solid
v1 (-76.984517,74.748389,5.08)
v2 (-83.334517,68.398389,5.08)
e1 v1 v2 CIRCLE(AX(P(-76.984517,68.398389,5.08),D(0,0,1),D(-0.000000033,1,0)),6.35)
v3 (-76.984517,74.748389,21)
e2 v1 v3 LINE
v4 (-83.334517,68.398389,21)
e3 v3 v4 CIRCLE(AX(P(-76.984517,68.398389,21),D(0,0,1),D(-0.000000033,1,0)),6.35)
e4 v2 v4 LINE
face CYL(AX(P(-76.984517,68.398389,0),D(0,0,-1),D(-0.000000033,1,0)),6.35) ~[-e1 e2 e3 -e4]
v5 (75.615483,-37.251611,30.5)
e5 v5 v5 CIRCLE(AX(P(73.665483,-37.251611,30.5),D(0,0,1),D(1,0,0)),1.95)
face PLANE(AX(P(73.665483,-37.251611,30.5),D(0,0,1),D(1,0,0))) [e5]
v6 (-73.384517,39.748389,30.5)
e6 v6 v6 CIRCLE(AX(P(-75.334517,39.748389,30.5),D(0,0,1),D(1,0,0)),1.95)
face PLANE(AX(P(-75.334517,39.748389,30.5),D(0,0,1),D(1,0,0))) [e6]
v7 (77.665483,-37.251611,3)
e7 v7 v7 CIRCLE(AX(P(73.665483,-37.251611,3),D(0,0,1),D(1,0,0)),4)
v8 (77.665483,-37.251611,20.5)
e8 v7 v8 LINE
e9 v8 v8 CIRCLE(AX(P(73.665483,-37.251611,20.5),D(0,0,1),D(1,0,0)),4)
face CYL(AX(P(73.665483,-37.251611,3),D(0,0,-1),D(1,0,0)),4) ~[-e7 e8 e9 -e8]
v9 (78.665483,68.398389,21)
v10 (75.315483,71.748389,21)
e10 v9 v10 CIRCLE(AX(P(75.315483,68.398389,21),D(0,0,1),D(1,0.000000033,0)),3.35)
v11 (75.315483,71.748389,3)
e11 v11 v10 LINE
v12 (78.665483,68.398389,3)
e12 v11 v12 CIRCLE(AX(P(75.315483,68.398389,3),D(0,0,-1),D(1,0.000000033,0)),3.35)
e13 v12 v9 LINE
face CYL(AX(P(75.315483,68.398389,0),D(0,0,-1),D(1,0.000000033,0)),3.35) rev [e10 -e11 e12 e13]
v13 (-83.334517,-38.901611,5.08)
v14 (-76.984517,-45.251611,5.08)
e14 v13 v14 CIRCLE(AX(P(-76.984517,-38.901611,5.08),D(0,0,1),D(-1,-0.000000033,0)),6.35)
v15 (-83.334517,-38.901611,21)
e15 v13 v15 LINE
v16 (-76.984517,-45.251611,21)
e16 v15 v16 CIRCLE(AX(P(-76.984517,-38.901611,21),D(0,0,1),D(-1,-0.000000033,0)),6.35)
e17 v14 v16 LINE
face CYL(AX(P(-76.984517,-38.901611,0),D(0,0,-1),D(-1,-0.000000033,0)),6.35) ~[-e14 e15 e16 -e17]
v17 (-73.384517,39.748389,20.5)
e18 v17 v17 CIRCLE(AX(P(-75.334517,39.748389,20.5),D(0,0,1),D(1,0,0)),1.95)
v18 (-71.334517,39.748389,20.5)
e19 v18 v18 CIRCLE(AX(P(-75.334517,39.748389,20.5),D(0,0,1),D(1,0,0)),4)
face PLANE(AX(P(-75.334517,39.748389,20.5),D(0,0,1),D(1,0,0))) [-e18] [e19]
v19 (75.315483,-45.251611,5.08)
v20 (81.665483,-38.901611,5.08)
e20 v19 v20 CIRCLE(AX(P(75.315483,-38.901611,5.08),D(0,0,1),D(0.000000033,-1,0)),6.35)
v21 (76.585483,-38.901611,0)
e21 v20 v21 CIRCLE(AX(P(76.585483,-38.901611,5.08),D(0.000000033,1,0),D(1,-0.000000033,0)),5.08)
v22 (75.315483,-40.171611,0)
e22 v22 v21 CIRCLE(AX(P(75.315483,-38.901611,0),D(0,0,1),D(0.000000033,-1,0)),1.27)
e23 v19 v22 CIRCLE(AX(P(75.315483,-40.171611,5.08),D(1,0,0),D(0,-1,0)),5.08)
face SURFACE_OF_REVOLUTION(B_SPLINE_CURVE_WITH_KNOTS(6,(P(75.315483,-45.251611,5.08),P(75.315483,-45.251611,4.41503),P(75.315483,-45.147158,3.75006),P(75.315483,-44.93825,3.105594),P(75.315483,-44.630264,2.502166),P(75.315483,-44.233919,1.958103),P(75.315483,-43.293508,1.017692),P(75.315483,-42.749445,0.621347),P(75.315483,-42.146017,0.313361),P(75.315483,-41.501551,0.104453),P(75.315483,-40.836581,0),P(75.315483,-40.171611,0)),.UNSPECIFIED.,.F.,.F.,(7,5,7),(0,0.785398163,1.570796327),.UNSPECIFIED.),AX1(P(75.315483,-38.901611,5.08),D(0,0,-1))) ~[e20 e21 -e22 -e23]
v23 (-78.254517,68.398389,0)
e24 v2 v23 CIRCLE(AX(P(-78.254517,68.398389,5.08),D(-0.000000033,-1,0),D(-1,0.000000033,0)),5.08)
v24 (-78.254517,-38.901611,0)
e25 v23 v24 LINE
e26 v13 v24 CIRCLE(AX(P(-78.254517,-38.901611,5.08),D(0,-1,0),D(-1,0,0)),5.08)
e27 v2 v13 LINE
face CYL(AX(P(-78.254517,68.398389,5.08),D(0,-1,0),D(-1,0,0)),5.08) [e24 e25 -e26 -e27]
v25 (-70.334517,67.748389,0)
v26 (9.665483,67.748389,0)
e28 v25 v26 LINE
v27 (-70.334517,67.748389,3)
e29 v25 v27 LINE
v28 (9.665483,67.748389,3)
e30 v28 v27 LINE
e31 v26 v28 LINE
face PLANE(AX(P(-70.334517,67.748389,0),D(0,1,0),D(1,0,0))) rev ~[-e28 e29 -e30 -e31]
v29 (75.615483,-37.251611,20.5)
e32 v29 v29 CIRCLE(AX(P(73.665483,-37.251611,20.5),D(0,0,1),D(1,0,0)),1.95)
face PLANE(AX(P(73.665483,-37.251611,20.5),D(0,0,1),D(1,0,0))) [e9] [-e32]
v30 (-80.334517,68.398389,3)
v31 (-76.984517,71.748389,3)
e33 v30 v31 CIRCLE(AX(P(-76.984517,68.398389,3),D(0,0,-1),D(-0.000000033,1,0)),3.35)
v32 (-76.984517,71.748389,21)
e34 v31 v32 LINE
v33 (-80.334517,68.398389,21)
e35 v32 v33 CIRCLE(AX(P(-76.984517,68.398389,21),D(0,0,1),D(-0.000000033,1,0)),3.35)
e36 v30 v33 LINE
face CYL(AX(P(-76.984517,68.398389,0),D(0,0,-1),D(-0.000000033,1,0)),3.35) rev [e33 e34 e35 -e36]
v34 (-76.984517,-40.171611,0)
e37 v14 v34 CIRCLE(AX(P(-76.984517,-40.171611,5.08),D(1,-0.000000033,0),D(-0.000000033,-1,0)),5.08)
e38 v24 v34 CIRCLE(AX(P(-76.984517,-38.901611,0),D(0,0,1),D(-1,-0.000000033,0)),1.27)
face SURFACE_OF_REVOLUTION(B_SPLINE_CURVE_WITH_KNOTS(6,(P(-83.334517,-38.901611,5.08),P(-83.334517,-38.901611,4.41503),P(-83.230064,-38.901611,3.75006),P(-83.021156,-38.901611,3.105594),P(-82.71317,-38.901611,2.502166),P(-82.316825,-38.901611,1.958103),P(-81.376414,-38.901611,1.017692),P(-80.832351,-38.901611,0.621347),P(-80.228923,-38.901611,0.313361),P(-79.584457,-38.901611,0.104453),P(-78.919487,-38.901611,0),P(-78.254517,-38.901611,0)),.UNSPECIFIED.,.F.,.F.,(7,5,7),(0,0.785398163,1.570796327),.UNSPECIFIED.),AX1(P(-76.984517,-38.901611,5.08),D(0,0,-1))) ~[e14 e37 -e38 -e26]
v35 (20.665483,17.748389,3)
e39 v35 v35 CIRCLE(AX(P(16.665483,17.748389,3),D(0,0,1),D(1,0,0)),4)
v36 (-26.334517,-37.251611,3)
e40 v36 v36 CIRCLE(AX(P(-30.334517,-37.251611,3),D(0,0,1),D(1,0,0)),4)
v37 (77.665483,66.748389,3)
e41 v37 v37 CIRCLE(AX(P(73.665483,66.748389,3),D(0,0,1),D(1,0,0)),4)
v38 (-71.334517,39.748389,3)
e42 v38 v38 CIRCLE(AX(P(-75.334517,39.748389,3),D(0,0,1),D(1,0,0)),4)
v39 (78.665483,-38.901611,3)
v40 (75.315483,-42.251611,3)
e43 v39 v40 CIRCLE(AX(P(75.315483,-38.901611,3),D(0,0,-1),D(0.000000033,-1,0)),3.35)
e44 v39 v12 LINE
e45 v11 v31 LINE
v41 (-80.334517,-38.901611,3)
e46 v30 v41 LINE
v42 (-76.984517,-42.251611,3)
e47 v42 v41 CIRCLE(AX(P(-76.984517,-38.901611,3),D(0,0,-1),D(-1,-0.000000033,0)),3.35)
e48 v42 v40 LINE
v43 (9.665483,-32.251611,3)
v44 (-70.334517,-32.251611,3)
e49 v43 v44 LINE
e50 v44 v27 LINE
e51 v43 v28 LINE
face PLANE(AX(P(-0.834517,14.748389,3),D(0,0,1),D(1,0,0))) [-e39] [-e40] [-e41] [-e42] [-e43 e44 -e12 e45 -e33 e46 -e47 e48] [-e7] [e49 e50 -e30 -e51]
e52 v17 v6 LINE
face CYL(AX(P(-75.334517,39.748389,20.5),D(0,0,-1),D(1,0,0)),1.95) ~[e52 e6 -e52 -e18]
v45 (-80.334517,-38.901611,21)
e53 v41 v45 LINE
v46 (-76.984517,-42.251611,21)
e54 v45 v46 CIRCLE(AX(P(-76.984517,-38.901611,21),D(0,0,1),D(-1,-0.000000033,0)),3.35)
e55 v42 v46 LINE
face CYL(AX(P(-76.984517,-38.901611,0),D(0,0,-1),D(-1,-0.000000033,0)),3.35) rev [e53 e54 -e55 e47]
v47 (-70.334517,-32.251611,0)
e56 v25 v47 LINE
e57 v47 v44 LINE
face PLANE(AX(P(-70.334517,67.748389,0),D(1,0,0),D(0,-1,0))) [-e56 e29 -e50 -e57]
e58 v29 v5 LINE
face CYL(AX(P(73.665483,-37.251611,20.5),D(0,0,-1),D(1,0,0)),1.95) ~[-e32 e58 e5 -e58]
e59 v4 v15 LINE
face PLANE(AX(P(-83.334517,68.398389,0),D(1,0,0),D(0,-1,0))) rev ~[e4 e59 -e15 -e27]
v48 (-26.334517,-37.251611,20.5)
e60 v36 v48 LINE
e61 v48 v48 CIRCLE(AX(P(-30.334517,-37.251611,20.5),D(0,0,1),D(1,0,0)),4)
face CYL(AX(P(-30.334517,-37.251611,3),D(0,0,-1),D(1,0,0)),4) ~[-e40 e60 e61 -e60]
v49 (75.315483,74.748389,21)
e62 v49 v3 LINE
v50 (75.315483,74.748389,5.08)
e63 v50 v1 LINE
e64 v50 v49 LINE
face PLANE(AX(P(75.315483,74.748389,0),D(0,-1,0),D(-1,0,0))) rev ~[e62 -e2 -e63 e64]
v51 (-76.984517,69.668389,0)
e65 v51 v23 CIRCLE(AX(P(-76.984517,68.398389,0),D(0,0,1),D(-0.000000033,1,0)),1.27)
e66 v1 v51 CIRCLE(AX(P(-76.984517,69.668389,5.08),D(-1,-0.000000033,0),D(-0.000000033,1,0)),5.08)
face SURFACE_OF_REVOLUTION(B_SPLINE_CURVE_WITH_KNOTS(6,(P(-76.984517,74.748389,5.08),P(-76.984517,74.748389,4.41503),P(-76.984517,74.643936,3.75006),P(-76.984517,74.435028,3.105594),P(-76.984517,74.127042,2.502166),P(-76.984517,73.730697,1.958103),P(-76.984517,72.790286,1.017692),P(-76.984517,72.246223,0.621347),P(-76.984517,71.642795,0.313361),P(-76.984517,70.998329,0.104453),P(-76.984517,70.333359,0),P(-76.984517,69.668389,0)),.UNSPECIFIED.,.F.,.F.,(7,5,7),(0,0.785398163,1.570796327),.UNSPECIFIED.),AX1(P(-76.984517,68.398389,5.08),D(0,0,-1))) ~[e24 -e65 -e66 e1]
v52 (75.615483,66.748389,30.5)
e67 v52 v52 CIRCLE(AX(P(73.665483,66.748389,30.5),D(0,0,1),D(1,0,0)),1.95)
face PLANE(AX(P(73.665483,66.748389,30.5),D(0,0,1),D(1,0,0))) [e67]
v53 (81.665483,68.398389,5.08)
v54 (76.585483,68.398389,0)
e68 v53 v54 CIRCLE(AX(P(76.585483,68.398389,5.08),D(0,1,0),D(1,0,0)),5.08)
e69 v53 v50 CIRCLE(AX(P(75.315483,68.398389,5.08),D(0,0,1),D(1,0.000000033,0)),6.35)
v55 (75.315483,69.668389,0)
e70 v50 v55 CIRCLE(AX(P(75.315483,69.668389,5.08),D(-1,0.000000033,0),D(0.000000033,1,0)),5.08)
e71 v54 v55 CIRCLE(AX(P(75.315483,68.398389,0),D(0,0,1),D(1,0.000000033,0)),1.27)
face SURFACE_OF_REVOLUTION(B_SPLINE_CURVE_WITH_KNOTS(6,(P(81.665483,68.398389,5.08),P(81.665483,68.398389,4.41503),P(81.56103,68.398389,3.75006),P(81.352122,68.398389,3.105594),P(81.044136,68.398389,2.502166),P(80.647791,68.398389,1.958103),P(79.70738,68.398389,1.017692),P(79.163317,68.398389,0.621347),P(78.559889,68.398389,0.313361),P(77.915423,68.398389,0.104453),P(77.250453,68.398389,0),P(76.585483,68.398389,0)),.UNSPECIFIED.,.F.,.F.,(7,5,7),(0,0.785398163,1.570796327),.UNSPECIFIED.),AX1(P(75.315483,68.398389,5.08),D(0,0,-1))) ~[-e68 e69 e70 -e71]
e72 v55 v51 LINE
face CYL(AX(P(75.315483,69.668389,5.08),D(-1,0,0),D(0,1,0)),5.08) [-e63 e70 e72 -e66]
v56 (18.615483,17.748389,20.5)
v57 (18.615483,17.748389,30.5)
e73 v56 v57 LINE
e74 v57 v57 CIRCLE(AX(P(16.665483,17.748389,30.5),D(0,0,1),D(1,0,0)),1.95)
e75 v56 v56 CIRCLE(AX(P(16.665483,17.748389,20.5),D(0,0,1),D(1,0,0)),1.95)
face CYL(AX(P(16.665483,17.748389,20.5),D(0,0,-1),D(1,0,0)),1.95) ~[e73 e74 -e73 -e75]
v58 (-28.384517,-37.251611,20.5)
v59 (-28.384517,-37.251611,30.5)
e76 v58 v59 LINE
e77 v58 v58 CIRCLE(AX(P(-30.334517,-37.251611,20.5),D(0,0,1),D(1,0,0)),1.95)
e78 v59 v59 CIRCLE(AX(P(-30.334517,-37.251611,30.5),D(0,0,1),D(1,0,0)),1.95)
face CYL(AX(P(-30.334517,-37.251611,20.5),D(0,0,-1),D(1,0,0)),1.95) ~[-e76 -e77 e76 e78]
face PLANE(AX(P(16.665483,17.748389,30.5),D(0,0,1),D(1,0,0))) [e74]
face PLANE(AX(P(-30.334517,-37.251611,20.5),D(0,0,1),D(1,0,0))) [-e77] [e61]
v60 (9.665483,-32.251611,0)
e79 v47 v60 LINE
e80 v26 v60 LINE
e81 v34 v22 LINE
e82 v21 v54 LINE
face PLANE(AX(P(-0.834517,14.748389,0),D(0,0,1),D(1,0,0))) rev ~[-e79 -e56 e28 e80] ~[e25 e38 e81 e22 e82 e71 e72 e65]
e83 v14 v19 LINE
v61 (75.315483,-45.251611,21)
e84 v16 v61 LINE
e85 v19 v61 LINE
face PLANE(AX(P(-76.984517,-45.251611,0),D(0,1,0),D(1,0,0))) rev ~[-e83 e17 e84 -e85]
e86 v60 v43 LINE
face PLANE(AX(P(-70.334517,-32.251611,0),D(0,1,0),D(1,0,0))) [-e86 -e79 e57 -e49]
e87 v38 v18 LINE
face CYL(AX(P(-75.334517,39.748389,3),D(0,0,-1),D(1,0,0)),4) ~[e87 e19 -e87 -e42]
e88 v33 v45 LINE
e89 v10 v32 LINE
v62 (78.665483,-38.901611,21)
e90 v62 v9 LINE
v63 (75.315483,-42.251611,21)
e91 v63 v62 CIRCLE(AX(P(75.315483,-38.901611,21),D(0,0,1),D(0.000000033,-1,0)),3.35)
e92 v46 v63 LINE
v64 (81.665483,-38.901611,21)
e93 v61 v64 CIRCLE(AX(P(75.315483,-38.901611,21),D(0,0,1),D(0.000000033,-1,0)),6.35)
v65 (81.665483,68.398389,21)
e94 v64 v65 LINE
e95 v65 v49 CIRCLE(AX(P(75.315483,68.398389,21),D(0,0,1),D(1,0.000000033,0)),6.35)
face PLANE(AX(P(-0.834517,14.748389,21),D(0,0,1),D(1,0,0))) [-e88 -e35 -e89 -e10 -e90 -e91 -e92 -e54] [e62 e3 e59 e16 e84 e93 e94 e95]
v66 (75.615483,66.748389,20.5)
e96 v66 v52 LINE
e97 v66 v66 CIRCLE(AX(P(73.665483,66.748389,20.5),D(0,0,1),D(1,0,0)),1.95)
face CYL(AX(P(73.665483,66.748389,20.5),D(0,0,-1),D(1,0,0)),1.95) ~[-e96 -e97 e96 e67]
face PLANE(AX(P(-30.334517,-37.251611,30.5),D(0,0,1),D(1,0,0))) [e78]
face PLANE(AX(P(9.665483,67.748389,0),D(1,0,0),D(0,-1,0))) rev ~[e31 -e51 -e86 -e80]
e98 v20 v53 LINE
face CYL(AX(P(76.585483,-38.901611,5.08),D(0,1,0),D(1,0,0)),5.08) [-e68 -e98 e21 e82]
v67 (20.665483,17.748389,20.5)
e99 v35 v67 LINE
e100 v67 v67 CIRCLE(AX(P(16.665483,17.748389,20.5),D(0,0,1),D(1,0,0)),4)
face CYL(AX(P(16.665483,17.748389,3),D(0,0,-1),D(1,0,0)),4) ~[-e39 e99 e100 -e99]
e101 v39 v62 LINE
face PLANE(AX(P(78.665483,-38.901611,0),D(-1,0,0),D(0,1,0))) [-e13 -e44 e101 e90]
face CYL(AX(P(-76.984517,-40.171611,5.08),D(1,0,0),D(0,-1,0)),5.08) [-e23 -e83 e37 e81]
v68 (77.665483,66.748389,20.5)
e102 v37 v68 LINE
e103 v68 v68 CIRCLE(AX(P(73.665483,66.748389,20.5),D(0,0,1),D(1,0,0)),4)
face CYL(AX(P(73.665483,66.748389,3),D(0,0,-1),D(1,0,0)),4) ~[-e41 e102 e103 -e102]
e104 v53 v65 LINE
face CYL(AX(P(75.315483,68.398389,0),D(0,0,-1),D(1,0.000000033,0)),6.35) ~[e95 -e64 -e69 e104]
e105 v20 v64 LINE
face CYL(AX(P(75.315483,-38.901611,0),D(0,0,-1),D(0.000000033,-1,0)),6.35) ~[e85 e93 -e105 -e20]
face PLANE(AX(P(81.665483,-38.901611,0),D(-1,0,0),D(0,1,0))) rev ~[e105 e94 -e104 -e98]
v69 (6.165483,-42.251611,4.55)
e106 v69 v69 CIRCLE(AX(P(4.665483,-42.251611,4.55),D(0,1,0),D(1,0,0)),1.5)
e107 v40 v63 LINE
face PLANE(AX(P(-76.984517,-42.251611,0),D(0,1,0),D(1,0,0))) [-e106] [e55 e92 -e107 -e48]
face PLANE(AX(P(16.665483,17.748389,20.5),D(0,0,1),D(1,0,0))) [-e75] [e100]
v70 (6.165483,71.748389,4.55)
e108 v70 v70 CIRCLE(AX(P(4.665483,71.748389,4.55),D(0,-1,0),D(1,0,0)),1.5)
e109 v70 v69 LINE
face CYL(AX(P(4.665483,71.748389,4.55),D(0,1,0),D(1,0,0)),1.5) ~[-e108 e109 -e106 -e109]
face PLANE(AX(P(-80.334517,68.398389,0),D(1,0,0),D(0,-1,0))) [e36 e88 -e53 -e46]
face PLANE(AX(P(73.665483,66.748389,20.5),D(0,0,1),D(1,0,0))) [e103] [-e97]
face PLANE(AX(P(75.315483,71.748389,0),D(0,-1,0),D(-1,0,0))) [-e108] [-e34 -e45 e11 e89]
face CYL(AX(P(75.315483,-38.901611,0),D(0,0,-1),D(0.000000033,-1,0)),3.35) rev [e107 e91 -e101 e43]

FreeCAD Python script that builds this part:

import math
import FreeCAD as App
import Part
import Sketcher

V = App.Vector


def edges_at(feature, points):
    """Names of the edges that pass closest to the given points."""
    edges = feature.Shape.Edges
    near = lambda p: min(range(len(edges)), key=lambda i: edges[i].distToShape(Part.Vertex(*p))[0])
    return sorted({f"Edge{near(p) + 1}" for p in points})


def faces_at(feature, points):
    """Names of the faces that lie closest to the given points."""
    faces = feature.Shape.Faces
    near = lambda p: min(range(len(faces)), key=lambda i: faces[i].distToShape(Part.Vertex(*p))[0])
    return sorted({f"Face{near(p) + 1}" for p in points})

doc = App.newDocument("Part")
params = doc.addObject("Spreadsheet::Sheet", "Params")
for row, (alias, value) in enumerate([
    ("sketch1_radius", "6.35 mm"),
    ("sketch1_width", "152.3 mm"),
    ("sketch1_height", "107.3 mm"),
    ("pad1_length", "21 mm"),
    ("thickness_wall", "3 mm"),
    ("fillet_radius", "5.08 mm"),
    ("sketch2_diameter", "8 mm"),
    ("pad2_length", "17.5 mm"),
    ("sketch3_diameter", "3.9 mm"),
    ("pad3_length", "10 mm"),
    ("sketch4_width", "80 mm"),
    ("sketch4_height", "100 mm"),
    ("pocket1_length", "25 mm"),
    ("sketch5_diameter", "3 mm"),
    ("pad4_length", "115 mm"),
], start=1):
    params.set(f"A{row}", alias)
    params.set(f"B{row}", "=" + value)
    params.setAlias(f"B{row}", alias)

body = doc.addObject("PartDesign::Body", "Body")

# Sketch on XY plane
sketch1 = body.newObject("Sketcher::SketchObject", "Sketch")
sketch1.AttachmentSupport = (doc.getObject("XY_Plane"), [""])
sketch1.MapMode = "FlatFace"
sketch1.addGeometry([
    Part.ArcOfCircle(Part.Circle(V(-76.984517, -38.901611, 0), V(0, 0, 1), 6.35), math.radians(-179.999998), math.radians(-90.000002)),  # 0
    Part.LineSegment(V(-76.984517, -45.251611, 0), V(75.315483, -45.251611, 0)),  # 1
    Part.ArcOfCircle(Part.Circle(V(75.315483, -38.901611, 0), V(0, 0, 1), 6.35), math.radians(-89.999998), math.radians(-0.000002)),  # 2
    Part.LineSegment(V(81.665483, -38.901611, 0), V(81.665483, 68.398389, 0)),  # 3
    Part.ArcOfCircle(Part.Circle(V(75.315483, 68.398389, 0), V(0, 0, 1), 6.35), math.radians(0.000002), math.radians(89.999998)),  # 4
    Part.LineSegment(V(75.315483, 74.748389, 0), V(-76.984517, 74.748389, 0)),  # 5
    Part.ArcOfCircle(Part.Circle(V(-76.984517, 68.398389, 0), V(0, 0, 1), 6.35), math.radians(90.000002), math.radians(179.999998)),  # 6
    Part.LineSegment(V(-83.334517, 68.398389, 0), V(-83.334517, -38.901611, 0)),  # 7
], False)
sketch1.addConstraint([
    Sketcher.Constraint("Tangent", 0, 2, 1, 1),
    Sketcher.Constraint("Tangent", 1, 2, 2, 1),
    Sketcher.Constraint("Tangent", 2, 2, 3, 1),
    Sketcher.Constraint("Tangent", 3, 2, 4, 1),
    Sketcher.Constraint("Tangent", 4, 2, 5, 1),
    Sketcher.Constraint("Tangent", 5, 2, 6, 1),
    Sketcher.Constraint("Tangent", 6, 2, 7, 1),
    Sketcher.Constraint("Tangent", 7, 2, 0, 1),
    Sketcher.Constraint("Horizontal", 1),
    Sketcher.Constraint("Vertical", 3),
    Sketcher.Constraint("Horizontal", 5),
    Sketcher.Constraint("Vertical", 7),
    Sketcher.Constraint("Equal", 0, 2),
    Sketcher.Constraint("Equal", 2, 4),
    Sketcher.Constraint("Equal", 4, 6),
    Sketcher.Constraint("Radius", 0, 6.35),
    Sketcher.Constraint("DistanceX", 1, 1, 1, 2, 152.3),
    Sketcher.Constraint("DistanceY", 3, 1, 3, 2, 107.3),
    Sketcher.Constraint("DistanceY", 0, 3, -1, 1, 38.901611),
    Sketcher.Constraint("DistanceX", 0, 3, -1, 1, 76.984517),
])
sketch1.setExpression("Constraints[15]", "Params.sketch1_radius")
sketch1.setExpression("Constraints[16]", "Params.sketch1_width")
sketch1.setExpression("Constraints[17]", "Params.sketch1_height")
pad1 = body.newObject("PartDesign::Pad", "Pad")
pad1.Profile = sketch1
pad1.setExpression("Length", "Params.pad1_length")
doc.recompute()

thickness = body.newObject("PartDesign::Thickness", "Thickness")
thickness.Base = (pad1, faces_at(pad1, [(-0.835, 14.748, 21)]))
thickness.setExpression("Value", "Params.thickness_wall")
thickness.Reversed = True
thickness.Join = "Arc"
doc.recompute()

fillet = body.newObject("PartDesign::Fillet", "Fillet")
fillet.Base = (thickness, edges_at(thickness, [(-81.475, 72.889, 0)]))
fillet.setExpression("Radius", "Params.fillet_radius")

# Sketch on XY plane
sketch2 = body.newObject("Sketcher::SketchObject", "Sketch001")
sketch2.AttachmentSupport = (doc.getObject("XY_Plane"), [""])
sketch2.MapMode = "FlatFace"
sketch2.AttachmentOffset = App.Placement(V(0, 0, 3), App.Rotation())
sketch2.addGeometry([
    Part.Circle(V(73.665483, -37.251611, 0), V(0, 0, 1), 4),  # 0
    Part.Circle(V(73.665483, 66.748389, 0), V(0, 0, 1), 4),  # 1
    Part.Circle(V(16.665483, 17.748389, 0), V(0, 0, 1), 4),  # 2
    Part.Circle(V(-75.334517, 39.748389, 0), V(0, 0, 1), 4),  # 3
    Part.Circle(V(-30.334517, -37.251611, 0), V(0, 0, 1), 4),  # 4
], False)
sketch2.addConstraint([
    Sketcher.Constraint("Equal", 0, 1),
    Sketcher.Constraint("Equal", 1, 2),
    Sketcher.Constraint("Equal", 2, 3),
    Sketcher.Constraint("Equal", 3, 4),
    Sketcher.Constraint("Horizontal", 0, 3, 4, 3),
    Sketcher.Constraint("Vertical", 0, 3, 1, 3),
    Sketcher.Constraint("Diameter", 0, 8.0),
    Sketcher.Constraint("DistanceY", 0, 3, 1, 3, 104.0),
    Sketcher.Constraint("DistanceX", 2, 3, 1, 3, 57.0),
    Sketcher.Constraint("DistanceY", 2, 3, 1, 3, 49.0),
    Sketcher.Constraint("DistanceX", 3, 3, 2, 3, 92.0),
    Sketcher.Constraint("DistanceY", 2, 3, 3, 3, 22.0),
    Sketcher.Constraint("DistanceX", 4, 3, 2, 3, 47.0),
    Sketcher.Constraint("DistanceY", 0, 3, -1, 1, 37.251611),
    Sketcher.Constraint("DistanceX", -1, 1, 0, 3, 73.665483),
])
sketch2.setExpression("Constraints[6]", "Params.sketch2_diameter")
pad2 = body.newObject("PartDesign::Pad", "Pad001")
pad2.Profile = sketch2
pad2.setExpression("Length", "Params.pad2_length")

# Sketch on XY plane
sketch3 = body.newObject("Sketcher::SketchObject", "Sketch002")
sketch3.AttachmentSupport = (doc.getObject("XY_Plane"), [""])
sketch3.MapMode = "FlatFace"
sketch3.AttachmentOffset = App.Placement(V(0, 0, 20.5), App.Rotation())
sketch3.addGeometry([
    Part.Circle(V(73.665483, -37.251611, 0), V(0, 0, 1), 1.95),  # 0
    Part.Circle(V(16.665483, 17.748389, 0), V(0, 0, 1), 1.95),  # 1
    Part.Circle(V(73.665483, 66.748389, 0), V(0, 0, 1), 1.95),  # 2
    Part.Circle(V(-30.334517, -37.251611, 0), V(0, 0, 1), 1.95),  # 3
    Part.Circle(V(-75.334517, 39.748389, 0), V(0, 0, 1), 1.95),  # 4
], False)
sketch3.addConstraint([
    Sketcher.Constraint("Equal", 0, 1),
    Sketcher.Constraint("Equal", 1, 2),
    Sketcher.Constraint("Equal", 2, 3),
    Sketcher.Constraint("Equal", 3, 4),
    Sketcher.Constraint("Horizontal", 0, 3, 3, 3),
    Sketcher.Constraint("Vertical", 0, 3, 2, 3),
    Sketcher.Constraint("Diameter", 0, 3.9),
    Sketcher.Constraint("DistanceX", 1, 3, 0, 3, 57.0),
    Sketcher.Constraint("DistanceY", 0, 3, 1, 3, 55.0),
    Sketcher.Constraint("DistanceY", 1, 3, 2, 3, 49.0),
    Sketcher.Constraint("DistanceX", 3, 3, 1, 3, 47.0),
    Sketcher.Constraint("DistanceX", 4, 3, 3, 3, 45.0),
    Sketcher.Constraint("DistanceY", 3, 3, 4, 3, 77.0),
    Sketcher.Constraint("DistanceY", 0, 3, -1, 1, 37.251611),
    Sketcher.Constraint("DistanceX", -1, 1, 0, 3, 73.665483),
])
sketch3.setExpression("Constraints[6]", "Params.sketch3_diameter")
pad3 = body.newObject("PartDesign::Pad", "Pad002")
pad3.Profile = sketch3
pad3.setExpression("Length", "Params.pad3_length")

# Sketch on XY plane
sketch4 = body.newObject("Sketcher::SketchObject", "Sketch003")
sketch4.AttachmentSupport = (doc.getObject("XY_Plane"), [""])
sketch4.MapMode = "FlatFace"
sketch4.addGeometry([
    Part.LineSegment(V(-70.334517, -32.251611, 0), V(-70.334517, 67.748389, 0)),
    Part.LineSegment(V(-70.334517, 67.748389, 0), V(9.665483, 67.748389, 0)),
    Part.LineSegment(V(9.665483, 67.748389, 0), V(9.665483, -32.251611, 0)),
    Part.LineSegment(V(9.665483, -32.251611, 0), V(-70.334517, -32.251611, 0)),
], False)
sketch4.addConstraint([
    Sketcher.Constraint("Coincident", 0, 2, 1, 1),
    Sketcher.Constraint("Coincident", 1, 2, 2, 1),
    Sketcher.Constraint("Coincident", 2, 2, 3, 1),
    Sketcher.Constraint("Coincident", 3, 2, 0, 1),
    Sketcher.Constraint("Vertical", 0),
    Sketcher.Constraint("Horizontal", 1),
    Sketcher.Constraint("Vertical", 2),
    Sketcher.Constraint("Horizontal", 3),
    Sketcher.Constraint("DistanceX", 1, 1, 1, 2, 80.0),
    Sketcher.Constraint("DistanceY", 0, 1, 0, 2, 100.0),
    Sketcher.Constraint("DistanceY", -1, 1, 0, 2, 67.748389),
    Sketcher.Constraint("DistanceX", 0, 2, -1, 1, 70.334517),
])
sketch4.setExpression("Constraints[8]", "Params.sketch4_width")
sketch4.setExpression("Constraints[9]", "Params.sketch4_height")
pocket1 = body.newObject("PartDesign::Pocket", "Pocket")
pocket1.Profile = sketch4
pocket1.setExpression("Length", "Params.pocket1_length")
pocket1.Reversed = True

# Sketch on XZ plane
sketch5 = body.newObject("Sketcher::SketchObject", "Sketch004")
sketch5.AttachmentSupport = (doc.getObject("XZ_Plane"), [""])
sketch5.MapMode = "FlatFace"
sketch5.AttachmentOffset = App.Placement(V(0, 0, -71.748389), App.Rotation())
sketch5.addGeometry(Part.Circle(V(4.665483, 4.55, 0), V(0, 0, 1), 1.5), False)
sketch5.addConstraint([
    Sketcher.Constraint("Diameter", 0, 3.0),
    Sketcher.Constraint("DistanceY", -1, 1, 0, 3, 4.55),
    Sketcher.Constraint("DistanceX", -1, 1, 0, 3, 4.665483),
])
sketch5.setExpression("Constraints[0]", "Params.sketch5_diameter")
pad4 = body.newObject("PartDesign::Pad", "Pad003")
pad4.Profile = sketch5
pad4.setExpression("Length", "Params.pad4_length")

doc.recompute()
